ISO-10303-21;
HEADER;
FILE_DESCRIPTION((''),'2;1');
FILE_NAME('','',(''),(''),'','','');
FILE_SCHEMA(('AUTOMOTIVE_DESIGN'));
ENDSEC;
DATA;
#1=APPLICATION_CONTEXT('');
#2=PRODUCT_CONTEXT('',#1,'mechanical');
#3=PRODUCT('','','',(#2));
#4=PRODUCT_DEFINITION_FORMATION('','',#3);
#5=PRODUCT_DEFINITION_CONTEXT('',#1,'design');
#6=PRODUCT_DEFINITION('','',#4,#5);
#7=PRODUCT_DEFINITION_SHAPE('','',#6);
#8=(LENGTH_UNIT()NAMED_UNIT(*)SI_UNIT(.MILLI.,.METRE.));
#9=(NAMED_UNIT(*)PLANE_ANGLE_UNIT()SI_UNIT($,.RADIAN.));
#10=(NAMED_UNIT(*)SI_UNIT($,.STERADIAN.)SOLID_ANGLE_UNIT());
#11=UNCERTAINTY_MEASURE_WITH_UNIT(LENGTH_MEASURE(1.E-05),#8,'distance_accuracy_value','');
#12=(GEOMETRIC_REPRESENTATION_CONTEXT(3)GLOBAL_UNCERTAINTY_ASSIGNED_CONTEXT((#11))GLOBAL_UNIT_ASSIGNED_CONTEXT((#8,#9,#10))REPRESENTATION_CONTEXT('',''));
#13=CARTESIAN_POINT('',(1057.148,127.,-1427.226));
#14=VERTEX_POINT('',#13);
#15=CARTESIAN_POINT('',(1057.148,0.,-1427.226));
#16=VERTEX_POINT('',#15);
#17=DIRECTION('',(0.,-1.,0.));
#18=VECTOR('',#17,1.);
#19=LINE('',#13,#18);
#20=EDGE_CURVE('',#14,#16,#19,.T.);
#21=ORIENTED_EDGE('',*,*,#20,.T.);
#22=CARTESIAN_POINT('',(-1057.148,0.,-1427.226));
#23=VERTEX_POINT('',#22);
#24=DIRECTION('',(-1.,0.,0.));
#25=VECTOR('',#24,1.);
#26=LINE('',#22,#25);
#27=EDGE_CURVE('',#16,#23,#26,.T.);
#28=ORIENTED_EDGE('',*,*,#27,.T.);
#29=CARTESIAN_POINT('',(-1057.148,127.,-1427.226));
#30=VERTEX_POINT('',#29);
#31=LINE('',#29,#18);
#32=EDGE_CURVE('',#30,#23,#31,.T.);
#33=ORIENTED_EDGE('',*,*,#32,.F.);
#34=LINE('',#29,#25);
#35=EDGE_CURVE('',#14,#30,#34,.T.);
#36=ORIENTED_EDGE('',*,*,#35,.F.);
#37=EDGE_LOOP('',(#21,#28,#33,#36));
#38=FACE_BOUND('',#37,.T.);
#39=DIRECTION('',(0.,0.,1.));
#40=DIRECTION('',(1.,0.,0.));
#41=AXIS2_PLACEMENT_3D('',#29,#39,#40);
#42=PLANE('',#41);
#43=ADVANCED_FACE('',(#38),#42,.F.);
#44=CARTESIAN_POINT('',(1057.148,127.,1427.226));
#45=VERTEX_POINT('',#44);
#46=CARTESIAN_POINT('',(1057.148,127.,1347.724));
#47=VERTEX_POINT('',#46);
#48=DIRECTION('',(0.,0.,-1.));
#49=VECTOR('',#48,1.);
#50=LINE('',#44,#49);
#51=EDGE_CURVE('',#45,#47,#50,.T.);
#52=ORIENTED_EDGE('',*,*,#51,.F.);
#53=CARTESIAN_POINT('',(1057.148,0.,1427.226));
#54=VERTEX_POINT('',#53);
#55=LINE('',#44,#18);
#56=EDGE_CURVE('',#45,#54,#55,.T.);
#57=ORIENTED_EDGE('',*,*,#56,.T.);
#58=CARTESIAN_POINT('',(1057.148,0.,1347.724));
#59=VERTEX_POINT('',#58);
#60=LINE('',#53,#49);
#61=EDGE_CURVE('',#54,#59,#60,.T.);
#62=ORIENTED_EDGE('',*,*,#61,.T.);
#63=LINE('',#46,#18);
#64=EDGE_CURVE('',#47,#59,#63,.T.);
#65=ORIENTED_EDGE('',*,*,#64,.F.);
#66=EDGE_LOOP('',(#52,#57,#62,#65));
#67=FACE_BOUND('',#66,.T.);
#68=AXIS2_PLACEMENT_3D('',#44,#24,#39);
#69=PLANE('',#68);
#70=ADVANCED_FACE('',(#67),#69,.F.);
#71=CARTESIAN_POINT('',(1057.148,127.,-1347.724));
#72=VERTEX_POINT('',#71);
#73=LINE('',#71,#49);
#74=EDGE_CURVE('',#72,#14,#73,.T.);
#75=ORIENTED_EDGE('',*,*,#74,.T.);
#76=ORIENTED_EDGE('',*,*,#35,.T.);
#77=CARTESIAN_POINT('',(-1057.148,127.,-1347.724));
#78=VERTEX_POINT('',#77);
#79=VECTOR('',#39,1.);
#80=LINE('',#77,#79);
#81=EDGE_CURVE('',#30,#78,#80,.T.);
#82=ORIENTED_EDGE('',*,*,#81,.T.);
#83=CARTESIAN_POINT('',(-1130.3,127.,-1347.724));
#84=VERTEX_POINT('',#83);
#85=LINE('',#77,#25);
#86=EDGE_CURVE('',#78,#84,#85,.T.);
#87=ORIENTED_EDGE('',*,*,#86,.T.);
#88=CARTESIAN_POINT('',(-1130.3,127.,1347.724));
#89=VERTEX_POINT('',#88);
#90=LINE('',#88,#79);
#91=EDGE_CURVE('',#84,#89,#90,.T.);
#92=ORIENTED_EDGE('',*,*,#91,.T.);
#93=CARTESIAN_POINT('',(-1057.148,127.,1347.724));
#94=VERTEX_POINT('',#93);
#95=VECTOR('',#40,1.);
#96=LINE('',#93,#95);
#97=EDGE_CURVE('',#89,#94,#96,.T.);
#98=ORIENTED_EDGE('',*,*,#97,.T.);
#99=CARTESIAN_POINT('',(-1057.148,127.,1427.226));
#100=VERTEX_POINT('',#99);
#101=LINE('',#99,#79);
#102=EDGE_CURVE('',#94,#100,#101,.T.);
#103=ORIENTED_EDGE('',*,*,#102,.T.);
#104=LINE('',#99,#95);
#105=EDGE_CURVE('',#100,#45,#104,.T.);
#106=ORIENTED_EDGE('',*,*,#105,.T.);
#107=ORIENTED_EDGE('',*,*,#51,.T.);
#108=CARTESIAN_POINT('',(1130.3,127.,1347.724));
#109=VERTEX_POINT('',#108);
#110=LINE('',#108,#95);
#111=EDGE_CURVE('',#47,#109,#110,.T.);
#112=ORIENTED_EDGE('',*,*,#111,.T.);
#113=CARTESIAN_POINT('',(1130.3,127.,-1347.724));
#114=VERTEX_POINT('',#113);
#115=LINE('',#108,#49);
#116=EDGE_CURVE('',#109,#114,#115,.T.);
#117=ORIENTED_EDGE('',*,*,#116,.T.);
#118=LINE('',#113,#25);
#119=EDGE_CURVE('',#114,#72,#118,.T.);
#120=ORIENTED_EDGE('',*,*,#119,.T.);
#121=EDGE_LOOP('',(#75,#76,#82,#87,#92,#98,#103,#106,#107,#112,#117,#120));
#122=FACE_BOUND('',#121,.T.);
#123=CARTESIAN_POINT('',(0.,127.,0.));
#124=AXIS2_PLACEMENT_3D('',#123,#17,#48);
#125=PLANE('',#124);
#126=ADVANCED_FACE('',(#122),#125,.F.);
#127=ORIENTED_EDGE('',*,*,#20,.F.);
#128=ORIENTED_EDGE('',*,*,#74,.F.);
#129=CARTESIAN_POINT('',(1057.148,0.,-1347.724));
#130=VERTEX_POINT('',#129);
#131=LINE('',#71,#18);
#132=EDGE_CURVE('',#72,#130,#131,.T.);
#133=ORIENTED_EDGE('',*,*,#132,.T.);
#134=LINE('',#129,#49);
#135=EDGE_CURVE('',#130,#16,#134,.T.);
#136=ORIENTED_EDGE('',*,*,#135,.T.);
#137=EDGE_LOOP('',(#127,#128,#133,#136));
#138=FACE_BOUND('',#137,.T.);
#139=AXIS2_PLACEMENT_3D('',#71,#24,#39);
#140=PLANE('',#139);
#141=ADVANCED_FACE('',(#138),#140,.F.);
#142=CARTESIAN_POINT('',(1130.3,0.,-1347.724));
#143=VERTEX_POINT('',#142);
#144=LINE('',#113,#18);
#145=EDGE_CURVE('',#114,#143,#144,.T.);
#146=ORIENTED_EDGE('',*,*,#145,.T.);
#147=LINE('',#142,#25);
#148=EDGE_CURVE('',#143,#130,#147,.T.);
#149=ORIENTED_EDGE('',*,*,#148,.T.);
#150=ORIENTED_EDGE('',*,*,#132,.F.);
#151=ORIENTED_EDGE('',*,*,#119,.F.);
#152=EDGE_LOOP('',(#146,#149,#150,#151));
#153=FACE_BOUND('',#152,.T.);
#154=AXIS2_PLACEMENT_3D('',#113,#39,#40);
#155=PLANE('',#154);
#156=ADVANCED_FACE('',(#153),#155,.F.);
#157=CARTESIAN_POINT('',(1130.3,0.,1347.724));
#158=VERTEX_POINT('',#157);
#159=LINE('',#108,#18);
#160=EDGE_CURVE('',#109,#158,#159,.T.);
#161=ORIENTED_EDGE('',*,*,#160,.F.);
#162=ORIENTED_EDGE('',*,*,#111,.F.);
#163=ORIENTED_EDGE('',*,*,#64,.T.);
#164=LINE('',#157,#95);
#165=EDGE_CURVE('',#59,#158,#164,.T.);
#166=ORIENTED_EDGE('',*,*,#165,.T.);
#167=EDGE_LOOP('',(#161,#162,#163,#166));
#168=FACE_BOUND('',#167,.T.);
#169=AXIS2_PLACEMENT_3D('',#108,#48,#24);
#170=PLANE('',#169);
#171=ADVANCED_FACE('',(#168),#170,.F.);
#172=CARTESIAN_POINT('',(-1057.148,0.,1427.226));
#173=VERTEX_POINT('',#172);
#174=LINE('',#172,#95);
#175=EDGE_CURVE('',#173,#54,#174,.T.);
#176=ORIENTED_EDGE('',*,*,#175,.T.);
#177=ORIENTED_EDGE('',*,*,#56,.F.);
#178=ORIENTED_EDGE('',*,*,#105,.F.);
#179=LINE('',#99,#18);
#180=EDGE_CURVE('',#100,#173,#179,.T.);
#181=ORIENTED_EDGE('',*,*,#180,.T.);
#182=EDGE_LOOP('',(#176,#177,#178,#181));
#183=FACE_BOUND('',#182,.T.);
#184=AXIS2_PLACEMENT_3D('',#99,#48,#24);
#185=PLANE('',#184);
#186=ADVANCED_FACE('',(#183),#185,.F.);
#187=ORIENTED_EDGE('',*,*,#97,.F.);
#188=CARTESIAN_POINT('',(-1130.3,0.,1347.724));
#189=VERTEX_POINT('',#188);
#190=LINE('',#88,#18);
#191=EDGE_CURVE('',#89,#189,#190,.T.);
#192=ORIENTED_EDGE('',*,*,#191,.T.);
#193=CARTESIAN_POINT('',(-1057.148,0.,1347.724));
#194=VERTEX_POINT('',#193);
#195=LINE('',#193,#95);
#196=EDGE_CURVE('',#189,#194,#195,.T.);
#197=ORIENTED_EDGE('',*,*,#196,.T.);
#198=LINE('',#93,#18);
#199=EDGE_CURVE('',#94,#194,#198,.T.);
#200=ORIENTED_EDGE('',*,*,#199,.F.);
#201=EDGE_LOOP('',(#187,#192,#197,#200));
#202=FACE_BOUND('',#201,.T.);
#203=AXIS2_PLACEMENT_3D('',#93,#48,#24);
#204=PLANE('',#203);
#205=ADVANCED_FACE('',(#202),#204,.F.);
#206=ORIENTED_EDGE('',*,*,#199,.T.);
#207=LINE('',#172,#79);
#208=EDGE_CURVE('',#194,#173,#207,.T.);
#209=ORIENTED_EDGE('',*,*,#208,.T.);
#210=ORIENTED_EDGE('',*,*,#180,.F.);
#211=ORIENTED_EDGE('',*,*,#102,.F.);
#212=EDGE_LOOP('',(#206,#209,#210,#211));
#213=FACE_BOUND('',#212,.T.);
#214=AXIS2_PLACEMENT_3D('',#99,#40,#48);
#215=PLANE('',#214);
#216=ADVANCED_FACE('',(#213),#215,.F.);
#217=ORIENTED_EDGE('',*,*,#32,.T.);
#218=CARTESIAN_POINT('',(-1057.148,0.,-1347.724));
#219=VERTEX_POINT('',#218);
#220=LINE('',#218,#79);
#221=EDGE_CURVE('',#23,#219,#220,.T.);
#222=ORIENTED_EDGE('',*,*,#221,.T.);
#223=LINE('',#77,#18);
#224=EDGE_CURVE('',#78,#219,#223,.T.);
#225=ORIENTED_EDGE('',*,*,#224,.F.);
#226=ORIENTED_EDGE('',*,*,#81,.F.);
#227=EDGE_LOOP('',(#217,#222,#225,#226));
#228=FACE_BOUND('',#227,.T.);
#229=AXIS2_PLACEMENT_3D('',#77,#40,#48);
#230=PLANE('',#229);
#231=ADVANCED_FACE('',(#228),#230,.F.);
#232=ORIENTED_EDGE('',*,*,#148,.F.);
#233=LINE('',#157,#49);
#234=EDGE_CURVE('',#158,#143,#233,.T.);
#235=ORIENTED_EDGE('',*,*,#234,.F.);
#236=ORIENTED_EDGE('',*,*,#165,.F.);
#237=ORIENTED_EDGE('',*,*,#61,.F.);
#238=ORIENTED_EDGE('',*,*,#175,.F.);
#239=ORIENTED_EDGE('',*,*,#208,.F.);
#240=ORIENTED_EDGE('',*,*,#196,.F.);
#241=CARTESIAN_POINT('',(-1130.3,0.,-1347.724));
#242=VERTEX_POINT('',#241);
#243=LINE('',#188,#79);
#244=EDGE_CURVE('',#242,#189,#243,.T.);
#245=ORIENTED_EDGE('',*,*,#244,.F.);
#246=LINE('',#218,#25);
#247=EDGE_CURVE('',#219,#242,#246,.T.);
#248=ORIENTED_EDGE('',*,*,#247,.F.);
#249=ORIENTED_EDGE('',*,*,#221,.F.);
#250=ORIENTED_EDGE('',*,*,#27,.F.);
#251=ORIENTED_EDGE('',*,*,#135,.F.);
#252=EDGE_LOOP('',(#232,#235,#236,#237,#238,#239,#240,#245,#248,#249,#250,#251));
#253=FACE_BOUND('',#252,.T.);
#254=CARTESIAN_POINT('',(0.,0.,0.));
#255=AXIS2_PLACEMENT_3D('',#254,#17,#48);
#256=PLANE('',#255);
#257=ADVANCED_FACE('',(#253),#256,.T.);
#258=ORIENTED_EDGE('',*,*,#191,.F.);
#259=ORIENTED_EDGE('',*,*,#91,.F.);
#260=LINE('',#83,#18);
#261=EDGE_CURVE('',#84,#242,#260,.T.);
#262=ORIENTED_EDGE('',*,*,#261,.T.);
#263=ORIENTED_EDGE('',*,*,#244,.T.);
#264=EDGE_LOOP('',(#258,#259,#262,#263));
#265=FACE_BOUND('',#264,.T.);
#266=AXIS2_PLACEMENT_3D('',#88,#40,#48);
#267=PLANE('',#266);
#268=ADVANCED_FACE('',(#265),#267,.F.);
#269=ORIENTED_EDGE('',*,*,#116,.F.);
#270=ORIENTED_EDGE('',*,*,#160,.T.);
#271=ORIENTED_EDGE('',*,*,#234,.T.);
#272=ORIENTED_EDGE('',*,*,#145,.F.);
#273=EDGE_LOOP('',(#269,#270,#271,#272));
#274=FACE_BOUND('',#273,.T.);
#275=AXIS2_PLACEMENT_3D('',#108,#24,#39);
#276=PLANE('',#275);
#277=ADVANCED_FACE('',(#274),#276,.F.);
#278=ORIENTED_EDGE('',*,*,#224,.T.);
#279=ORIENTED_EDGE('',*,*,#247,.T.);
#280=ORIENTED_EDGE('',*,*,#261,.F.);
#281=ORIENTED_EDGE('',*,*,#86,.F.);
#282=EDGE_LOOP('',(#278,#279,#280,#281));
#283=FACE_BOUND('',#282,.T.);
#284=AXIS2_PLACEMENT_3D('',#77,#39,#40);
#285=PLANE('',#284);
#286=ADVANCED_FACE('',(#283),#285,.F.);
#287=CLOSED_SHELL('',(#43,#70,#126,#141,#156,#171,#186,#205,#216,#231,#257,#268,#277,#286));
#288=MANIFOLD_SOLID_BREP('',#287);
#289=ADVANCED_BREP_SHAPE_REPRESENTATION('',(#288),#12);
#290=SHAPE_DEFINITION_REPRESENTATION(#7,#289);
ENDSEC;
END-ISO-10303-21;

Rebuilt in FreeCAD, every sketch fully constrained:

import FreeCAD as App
import Part
import Sketcher
from FreeCAD import Vector
Q = App.Units.Quantity

doc = App.newDocument("Part")
body = doc.addObject("PartDesign::Body", "Body")

sketch1 = doc.addObject("Sketcher::SketchObject", "Sketch")
body.addObject(sketch1)
sketch1.AttachmentSupport = (doc.XZ_Plane, [""])
sketch1.MapMode = "FlatFace"
sketch1.addGeometry([
    Part.LineSegment(Vector(-1057.148, 1427.226, 0), Vector(1057.148, 1427.226, 0)),
    Part.LineSegment(Vector(1057.148, 1427.226, 0), Vector(1057.148, 1347.724, 0)),
    Part.LineSegment(Vector(1057.148, 1347.724, 0), Vector(1130.3, 1347.724, 0)),
    Part.LineSegment(Vector(1130.3, 1347.724, 0), Vector(1130.3, -1347.724, 0)),
    Part.LineSegment(Vector(1130.3, -1347.724, 0), Vector(1057.148, -1347.724, 0)),
    Part.LineSegment(Vector(1057.148, -1347.724, 0), Vector(1057.148, -1427.226, 0)),
    Part.LineSegment(Vector(1057.148, -1427.226, 0), Vector(-1057.148, -1427.226, 0)),
    Part.LineSegment(Vector(-1057.148, -1427.226, 0), Vector(-1057.148, -1347.724, 0)),
    Part.LineSegment(Vector(-1057.148, -1347.724, 0), Vector(-1130.3, -1347.724, 0)),
    Part.LineSegment(Vector(-1130.3, -1347.724, 0), Vector(-1130.3, 1347.724, 0)),
    Part.LineSegment(Vector(-1130.3, 1347.724, 0), Vector(-1057.148, 1347.724, 0)),
    Part.LineSegment(Vector(-1057.148, 1347.724, 0), Vector(-1057.148, 1427.226, 0)),
], False)
sketch1.addConstraint([
    Sketcher.Constraint("Coincident", 0, 2, 1, 1),
    Sketcher.Constraint("Coincident", 1, 2, 2, 1),
    Sketcher.Constraint("Coincident", 2, 2, 3, 1),
    Sketcher.Constraint("Coincident", 3, 2, 4, 1),
    Sketcher.Constraint("Coincident", 4, 2, 5, 1),
    Sketcher.Constraint("Coincident", 5, 2, 6, 1),
    Sketcher.Constraint("Coincident", 6, 2, 7, 1),
    Sketcher.Constraint("Coincident", 7, 2, 8, 1),
    Sketcher.Constraint("Coincident", 8, 2, 9, 1),
    Sketcher.Constraint("Coincident", 9, 2, 10, 1),
    Sketcher.Constraint("Coincident", 10, 2, 11, 1),
    Sketcher.Constraint("Coincident", 11, 2, 0, 1),
    Sketcher.Constraint("Horizontal", 0),
    Sketcher.Constraint("Vertical", 1),
    Sketcher.Constraint("Horizontal", 2),
    Sketcher.Constraint("Vertical", 3),
    Sketcher.Constraint("Horizontal", 4),
    Sketcher.Constraint("Vertical", 5),
    Sketcher.Constraint("Horizontal", 6),
    Sketcher.Constraint("Vertical", 7),
    Sketcher.Constraint("Horizontal", 8),
    Sketcher.Constraint("Vertical", 9),
    Sketcher.Constraint("Horizontal", 10),
    Sketcher.Constraint("Vertical", 11),
    Sketcher.Constraint("Symmetric", 0, 2, 6, 2, -1, 1),
    Sketcher.Constraint("Symmetric", 2, 2, 8, 2, -1, 1),
    Sketcher.Constraint("Symmetric", 4, 2, 10, 2, -1, 1),
    Sketcher.Constraint("Symmetric", 4, 2, 7, 2, -2),
    Sketcher.Constraint("DistanceX", 8, 2, 3, 2, Q("89 in")),
    Sketcher.Constraint("DistanceX", 0, 1, 0, 2, Q("83.24 in")),
    Sketcher.Constraint("DistanceY", 1, 2, 1, 1, Q("3.13 in")),
    Sketcher.Constraint("DistanceY", 3, 2, 3, 1, Q("106.12 in")),
])
pad1 = doc.addObject("PartDesign::Pad", "Pad")
body.addObject(pad1)
pad1.Profile = sketch1
pad1.Length = Q("5 in")
pad1.Reversed = True

doc.recompute()
